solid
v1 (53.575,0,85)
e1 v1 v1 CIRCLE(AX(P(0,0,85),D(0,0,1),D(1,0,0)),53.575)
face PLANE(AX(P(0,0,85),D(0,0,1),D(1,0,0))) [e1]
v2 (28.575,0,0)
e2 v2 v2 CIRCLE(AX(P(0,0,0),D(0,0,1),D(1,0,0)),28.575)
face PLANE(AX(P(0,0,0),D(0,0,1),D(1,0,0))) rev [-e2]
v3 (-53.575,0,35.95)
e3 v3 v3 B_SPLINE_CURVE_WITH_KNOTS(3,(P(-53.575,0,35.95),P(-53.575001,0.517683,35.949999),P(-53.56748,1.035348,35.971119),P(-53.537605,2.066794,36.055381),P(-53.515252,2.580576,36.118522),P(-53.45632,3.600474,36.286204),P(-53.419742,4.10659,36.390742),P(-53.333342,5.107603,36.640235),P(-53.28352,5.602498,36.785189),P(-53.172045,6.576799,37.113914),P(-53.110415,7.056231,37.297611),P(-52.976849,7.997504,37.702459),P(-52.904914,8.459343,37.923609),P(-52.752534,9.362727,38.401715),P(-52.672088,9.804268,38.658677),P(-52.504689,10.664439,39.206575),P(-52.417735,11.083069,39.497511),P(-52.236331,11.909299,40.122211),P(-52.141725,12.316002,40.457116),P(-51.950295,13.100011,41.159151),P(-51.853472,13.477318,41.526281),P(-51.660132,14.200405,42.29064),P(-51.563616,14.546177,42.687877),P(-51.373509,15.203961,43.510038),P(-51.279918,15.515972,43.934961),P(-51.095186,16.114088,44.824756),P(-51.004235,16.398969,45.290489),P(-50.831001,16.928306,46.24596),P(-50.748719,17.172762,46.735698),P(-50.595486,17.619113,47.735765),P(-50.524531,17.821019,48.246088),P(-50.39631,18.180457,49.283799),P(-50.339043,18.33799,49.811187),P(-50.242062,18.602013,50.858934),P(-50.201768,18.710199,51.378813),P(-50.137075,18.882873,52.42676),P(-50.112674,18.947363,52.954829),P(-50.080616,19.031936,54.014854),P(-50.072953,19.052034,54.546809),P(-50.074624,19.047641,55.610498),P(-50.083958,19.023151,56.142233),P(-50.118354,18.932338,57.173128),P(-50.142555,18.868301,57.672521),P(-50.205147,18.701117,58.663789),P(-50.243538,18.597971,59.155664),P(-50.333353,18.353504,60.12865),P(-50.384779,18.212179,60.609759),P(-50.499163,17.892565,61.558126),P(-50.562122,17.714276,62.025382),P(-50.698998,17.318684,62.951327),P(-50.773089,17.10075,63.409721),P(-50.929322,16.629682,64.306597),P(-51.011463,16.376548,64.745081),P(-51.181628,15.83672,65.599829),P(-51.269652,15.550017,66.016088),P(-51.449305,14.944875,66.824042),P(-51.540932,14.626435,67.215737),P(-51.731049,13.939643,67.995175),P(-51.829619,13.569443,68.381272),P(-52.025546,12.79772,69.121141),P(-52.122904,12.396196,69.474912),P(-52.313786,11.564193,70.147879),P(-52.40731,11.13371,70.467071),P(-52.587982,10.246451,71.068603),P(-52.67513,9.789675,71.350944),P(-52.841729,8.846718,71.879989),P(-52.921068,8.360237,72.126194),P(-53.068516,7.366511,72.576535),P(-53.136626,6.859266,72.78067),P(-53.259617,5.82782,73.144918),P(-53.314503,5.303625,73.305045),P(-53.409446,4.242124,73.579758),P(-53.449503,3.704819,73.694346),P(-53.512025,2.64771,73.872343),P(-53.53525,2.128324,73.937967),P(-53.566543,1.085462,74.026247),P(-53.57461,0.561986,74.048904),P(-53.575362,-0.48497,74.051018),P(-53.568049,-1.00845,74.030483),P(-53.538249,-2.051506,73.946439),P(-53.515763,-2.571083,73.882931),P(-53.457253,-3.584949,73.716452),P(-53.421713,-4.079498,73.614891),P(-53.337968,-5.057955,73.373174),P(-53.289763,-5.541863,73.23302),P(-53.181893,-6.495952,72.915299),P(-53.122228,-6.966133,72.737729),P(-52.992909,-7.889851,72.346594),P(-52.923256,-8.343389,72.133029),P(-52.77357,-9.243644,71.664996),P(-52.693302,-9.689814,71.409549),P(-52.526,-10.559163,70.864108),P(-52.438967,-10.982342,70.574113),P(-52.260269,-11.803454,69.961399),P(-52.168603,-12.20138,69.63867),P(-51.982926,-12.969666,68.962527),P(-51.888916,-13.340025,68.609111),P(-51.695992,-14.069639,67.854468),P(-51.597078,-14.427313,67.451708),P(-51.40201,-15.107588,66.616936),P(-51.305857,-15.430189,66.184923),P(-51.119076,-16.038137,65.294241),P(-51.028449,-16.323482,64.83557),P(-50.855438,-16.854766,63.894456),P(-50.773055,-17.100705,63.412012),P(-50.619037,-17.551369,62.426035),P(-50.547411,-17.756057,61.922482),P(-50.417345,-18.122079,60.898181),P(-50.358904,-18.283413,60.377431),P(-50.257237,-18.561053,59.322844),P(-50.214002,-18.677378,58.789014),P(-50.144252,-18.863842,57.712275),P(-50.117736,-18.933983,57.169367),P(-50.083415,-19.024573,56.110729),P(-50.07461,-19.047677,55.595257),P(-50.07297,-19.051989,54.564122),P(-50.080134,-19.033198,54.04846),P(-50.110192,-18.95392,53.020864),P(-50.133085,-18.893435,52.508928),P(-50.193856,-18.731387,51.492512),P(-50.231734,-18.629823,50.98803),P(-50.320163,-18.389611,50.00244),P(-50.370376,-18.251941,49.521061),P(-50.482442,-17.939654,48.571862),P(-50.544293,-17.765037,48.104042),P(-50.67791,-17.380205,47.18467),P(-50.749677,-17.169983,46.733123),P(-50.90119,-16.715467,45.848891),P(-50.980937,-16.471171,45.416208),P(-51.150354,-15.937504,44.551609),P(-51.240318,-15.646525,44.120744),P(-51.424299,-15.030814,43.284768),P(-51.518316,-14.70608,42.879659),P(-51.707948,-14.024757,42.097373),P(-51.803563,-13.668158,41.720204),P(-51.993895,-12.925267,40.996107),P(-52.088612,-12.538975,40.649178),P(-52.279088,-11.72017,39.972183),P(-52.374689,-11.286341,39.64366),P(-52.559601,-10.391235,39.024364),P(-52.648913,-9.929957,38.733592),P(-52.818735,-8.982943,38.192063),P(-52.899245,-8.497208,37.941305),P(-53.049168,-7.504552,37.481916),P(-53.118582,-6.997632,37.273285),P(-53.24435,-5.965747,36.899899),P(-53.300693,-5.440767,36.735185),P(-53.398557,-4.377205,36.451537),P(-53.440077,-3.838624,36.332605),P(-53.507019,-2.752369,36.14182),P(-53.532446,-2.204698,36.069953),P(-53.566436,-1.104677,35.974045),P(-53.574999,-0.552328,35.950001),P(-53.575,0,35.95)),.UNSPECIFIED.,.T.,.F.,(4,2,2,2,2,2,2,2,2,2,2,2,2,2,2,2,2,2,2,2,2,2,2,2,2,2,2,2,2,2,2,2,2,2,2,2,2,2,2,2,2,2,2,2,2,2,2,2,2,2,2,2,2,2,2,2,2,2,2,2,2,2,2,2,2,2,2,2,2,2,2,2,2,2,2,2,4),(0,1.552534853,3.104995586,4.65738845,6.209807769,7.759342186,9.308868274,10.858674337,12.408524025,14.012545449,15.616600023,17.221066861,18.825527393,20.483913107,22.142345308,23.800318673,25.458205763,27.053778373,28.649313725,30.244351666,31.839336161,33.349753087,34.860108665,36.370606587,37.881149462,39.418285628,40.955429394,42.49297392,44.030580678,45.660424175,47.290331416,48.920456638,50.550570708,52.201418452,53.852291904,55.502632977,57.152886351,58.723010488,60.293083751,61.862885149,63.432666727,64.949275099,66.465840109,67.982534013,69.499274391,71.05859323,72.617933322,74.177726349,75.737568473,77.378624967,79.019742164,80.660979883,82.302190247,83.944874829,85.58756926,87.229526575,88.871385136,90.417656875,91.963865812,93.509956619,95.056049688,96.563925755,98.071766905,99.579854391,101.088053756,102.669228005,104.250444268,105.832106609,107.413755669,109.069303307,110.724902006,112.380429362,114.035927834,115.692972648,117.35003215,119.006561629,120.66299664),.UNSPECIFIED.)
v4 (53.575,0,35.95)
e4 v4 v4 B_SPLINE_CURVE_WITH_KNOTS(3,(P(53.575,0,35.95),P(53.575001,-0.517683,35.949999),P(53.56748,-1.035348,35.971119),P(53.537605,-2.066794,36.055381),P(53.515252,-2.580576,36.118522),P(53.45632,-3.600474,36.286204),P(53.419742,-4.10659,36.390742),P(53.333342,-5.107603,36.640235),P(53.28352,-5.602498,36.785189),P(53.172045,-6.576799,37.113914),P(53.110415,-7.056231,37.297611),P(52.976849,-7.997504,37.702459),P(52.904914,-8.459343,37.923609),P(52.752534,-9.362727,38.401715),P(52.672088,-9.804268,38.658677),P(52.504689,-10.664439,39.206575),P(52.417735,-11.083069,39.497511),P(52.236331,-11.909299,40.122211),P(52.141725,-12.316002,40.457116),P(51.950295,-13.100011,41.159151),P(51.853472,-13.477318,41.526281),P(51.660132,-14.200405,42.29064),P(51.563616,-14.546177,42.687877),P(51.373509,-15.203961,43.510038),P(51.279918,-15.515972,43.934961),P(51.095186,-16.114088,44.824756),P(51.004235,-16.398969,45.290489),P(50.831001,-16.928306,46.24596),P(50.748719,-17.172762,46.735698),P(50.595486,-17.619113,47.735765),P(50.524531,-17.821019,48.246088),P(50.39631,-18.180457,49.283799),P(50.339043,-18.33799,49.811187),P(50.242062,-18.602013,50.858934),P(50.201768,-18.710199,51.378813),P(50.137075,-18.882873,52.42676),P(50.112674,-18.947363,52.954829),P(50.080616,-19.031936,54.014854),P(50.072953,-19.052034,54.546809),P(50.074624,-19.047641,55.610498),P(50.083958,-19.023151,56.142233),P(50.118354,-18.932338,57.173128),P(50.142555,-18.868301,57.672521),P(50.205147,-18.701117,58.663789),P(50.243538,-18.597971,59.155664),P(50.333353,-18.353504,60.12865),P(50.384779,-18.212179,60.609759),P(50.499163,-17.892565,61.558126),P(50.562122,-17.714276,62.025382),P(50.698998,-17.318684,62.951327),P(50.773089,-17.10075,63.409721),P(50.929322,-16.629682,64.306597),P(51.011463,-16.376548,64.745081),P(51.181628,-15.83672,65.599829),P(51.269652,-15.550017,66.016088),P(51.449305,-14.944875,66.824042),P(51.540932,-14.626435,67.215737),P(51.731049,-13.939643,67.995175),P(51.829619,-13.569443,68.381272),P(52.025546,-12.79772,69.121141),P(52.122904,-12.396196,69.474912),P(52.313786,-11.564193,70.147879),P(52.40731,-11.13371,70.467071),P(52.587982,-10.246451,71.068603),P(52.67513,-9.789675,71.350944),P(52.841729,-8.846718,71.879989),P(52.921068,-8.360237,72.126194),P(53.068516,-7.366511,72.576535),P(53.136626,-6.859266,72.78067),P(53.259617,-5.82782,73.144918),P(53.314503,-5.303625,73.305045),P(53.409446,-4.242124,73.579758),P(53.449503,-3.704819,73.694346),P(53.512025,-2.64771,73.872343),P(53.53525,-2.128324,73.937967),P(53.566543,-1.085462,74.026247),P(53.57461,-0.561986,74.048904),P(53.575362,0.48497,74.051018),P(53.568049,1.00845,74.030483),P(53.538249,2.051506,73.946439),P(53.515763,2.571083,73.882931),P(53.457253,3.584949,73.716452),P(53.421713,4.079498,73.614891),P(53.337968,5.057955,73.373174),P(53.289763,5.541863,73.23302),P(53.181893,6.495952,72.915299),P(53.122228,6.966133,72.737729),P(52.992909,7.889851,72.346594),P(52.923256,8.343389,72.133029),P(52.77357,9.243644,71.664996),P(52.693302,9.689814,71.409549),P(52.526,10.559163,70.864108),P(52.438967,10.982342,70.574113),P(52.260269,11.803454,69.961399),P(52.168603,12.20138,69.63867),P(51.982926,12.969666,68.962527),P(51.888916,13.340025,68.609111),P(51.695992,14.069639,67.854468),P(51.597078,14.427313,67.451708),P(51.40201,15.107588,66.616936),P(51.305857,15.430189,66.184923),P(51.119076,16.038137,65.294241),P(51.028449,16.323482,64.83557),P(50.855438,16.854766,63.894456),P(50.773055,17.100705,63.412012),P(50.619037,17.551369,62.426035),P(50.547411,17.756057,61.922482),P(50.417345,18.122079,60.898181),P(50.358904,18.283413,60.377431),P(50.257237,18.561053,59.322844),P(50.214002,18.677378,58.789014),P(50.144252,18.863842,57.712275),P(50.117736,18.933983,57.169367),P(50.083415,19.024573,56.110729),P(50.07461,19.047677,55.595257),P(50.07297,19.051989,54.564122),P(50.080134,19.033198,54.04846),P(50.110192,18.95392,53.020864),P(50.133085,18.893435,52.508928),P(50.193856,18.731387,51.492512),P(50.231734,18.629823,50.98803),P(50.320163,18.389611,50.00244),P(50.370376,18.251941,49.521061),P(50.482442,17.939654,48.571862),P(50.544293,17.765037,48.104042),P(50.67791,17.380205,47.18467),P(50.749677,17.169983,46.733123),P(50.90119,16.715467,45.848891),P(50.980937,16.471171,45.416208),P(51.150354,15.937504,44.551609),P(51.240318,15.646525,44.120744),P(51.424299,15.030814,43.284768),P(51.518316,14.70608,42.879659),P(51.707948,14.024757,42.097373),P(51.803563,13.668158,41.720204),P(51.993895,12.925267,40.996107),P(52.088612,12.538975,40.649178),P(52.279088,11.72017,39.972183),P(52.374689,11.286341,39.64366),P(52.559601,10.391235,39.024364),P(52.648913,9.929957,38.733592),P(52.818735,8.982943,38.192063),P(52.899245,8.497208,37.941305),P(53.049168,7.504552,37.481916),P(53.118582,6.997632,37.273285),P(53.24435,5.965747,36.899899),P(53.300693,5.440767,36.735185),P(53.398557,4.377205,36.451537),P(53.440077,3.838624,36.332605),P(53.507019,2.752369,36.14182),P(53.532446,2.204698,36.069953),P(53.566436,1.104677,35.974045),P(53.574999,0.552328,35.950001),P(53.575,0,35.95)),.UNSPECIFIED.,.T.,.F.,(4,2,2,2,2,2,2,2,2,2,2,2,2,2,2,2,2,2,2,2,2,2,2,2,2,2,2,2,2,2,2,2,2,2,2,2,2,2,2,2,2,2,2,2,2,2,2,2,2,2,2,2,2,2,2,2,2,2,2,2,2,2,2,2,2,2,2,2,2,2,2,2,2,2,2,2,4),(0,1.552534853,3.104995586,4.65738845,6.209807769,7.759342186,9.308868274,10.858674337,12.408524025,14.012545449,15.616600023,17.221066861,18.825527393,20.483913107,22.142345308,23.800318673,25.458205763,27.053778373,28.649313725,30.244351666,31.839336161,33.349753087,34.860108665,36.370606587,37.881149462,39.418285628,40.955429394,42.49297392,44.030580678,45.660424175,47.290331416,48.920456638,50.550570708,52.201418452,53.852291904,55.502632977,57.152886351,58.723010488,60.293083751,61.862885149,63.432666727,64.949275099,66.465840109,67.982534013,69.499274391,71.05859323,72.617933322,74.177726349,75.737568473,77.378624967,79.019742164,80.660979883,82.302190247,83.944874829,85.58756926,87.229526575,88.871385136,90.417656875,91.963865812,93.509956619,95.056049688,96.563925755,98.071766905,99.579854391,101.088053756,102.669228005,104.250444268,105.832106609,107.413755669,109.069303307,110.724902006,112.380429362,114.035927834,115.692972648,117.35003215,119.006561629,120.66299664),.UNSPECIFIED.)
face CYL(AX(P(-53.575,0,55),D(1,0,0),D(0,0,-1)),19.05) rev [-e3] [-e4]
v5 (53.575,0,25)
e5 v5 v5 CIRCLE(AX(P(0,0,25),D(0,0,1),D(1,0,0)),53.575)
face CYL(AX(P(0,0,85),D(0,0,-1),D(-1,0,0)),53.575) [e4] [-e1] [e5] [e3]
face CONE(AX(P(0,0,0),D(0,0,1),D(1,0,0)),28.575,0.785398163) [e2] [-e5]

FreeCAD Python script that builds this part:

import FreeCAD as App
import Part
import Sketcher

V = App.Vector


def faces_at(feature, points):
    """Names of the faces that lie closest to the given points."""
    faces = feature.Shape.Faces
    near = lambda p: min(range(len(faces)), key=lambda i: faces[i].distToShape(Part.Vertex(*p))[0])
    return sorted({f"Face{near(p) + 1}" for p in points})

doc = App.newDocument("Part")
body = doc.addObject("PartDesign::Body", "Body")

# Sketch on XY plane
sketch1 = doc.addObject("Sketcher::SketchObject", "Sketch")
body.addObject(sketch1)
sketch1.AttachmentSupport = (doc.XY_Plane, [""])
sketch1.MapMode = "FlatFace"
sketch1.addGeometry(Part.Circle(V(0, 0, 0), V(0, 0, 1), 29), False)
sketch1.addConstraint([
    Sketcher.Constraint("Coincident", 0, 3, -1, 1),
    Sketcher.Constraint("Diameter", 0, 57.15),
])
pad1 = doc.addObject("PartDesign::Pad", "Pad")
body.addObject(pad1)
pad1.Profile = sketch1
pad1.Length = 25
doc.recompute()

draft = doc.addObject("PartDesign::Draft", "Draft")
body.addObject(draft)
draft.Base = (pad1, faces_at(pad1, [(-28.575, 0, 12.5)]))
draft.NeutralPlane = (doc.XY_Plane, [""])
draft.Angle = 45
draft.Reversed = True

# Sketch on XY plane
sketch2 = doc.addObject("Sketcher::SketchObject", "Sketch001")
body.addObject(sketch2)
sketch2.AttachmentSupport = (doc.XY_Plane, [""])
sketch2.MapMode = "FlatFace"
sketch2.AttachmentOffset = App.Placement(V(0, 0, 25), App.Rotation())
sketch2.addGeometry(Part.Circle(V(0, 0, 0), V(0, 0, 1), 54), False)
sketch2.addConstraint([
    Sketcher.Constraint("Coincident", 0, 3, -1, 1),
    Sketcher.Constraint("Diameter", 0, 107.15),
])
pad2 = doc.addObject("PartDesign::Pad", "Pad001")
body.addObject(pad2)
pad2.Profile = sketch2
pad2.Length = 60

# Sketch on YZ plane
sketch3 = doc.addObject("Sketcher::SketchObject", "Sketch002")
body.addObject(sketch3)
sketch3.AttachmentSupport = (doc.YZ_Plane, [""])
sketch3.MapMode = "FlatFace"
sketch3.addGeometry(Part.Circle(V(0, 55, 0), V(0, 0, 1), 19), False)
sketch3.addConstraint([
    Sketcher.Constraint("PointOnObject", 0, 3, -2),
    Sketcher.Constraint("Diameter", 0, 38.1),
    Sketcher.Constraint("DistanceY", -1, 1, 0, 3, 55.0),
])
pocket1 = doc.addObject("PartDesign::Pocket", "Pocket")
body.addObject(pocket1)
pocket1.Profile = sketch3
pocket1.Type = "ThroughAll"
pocket1.Midplane = True

doc.recompute()
